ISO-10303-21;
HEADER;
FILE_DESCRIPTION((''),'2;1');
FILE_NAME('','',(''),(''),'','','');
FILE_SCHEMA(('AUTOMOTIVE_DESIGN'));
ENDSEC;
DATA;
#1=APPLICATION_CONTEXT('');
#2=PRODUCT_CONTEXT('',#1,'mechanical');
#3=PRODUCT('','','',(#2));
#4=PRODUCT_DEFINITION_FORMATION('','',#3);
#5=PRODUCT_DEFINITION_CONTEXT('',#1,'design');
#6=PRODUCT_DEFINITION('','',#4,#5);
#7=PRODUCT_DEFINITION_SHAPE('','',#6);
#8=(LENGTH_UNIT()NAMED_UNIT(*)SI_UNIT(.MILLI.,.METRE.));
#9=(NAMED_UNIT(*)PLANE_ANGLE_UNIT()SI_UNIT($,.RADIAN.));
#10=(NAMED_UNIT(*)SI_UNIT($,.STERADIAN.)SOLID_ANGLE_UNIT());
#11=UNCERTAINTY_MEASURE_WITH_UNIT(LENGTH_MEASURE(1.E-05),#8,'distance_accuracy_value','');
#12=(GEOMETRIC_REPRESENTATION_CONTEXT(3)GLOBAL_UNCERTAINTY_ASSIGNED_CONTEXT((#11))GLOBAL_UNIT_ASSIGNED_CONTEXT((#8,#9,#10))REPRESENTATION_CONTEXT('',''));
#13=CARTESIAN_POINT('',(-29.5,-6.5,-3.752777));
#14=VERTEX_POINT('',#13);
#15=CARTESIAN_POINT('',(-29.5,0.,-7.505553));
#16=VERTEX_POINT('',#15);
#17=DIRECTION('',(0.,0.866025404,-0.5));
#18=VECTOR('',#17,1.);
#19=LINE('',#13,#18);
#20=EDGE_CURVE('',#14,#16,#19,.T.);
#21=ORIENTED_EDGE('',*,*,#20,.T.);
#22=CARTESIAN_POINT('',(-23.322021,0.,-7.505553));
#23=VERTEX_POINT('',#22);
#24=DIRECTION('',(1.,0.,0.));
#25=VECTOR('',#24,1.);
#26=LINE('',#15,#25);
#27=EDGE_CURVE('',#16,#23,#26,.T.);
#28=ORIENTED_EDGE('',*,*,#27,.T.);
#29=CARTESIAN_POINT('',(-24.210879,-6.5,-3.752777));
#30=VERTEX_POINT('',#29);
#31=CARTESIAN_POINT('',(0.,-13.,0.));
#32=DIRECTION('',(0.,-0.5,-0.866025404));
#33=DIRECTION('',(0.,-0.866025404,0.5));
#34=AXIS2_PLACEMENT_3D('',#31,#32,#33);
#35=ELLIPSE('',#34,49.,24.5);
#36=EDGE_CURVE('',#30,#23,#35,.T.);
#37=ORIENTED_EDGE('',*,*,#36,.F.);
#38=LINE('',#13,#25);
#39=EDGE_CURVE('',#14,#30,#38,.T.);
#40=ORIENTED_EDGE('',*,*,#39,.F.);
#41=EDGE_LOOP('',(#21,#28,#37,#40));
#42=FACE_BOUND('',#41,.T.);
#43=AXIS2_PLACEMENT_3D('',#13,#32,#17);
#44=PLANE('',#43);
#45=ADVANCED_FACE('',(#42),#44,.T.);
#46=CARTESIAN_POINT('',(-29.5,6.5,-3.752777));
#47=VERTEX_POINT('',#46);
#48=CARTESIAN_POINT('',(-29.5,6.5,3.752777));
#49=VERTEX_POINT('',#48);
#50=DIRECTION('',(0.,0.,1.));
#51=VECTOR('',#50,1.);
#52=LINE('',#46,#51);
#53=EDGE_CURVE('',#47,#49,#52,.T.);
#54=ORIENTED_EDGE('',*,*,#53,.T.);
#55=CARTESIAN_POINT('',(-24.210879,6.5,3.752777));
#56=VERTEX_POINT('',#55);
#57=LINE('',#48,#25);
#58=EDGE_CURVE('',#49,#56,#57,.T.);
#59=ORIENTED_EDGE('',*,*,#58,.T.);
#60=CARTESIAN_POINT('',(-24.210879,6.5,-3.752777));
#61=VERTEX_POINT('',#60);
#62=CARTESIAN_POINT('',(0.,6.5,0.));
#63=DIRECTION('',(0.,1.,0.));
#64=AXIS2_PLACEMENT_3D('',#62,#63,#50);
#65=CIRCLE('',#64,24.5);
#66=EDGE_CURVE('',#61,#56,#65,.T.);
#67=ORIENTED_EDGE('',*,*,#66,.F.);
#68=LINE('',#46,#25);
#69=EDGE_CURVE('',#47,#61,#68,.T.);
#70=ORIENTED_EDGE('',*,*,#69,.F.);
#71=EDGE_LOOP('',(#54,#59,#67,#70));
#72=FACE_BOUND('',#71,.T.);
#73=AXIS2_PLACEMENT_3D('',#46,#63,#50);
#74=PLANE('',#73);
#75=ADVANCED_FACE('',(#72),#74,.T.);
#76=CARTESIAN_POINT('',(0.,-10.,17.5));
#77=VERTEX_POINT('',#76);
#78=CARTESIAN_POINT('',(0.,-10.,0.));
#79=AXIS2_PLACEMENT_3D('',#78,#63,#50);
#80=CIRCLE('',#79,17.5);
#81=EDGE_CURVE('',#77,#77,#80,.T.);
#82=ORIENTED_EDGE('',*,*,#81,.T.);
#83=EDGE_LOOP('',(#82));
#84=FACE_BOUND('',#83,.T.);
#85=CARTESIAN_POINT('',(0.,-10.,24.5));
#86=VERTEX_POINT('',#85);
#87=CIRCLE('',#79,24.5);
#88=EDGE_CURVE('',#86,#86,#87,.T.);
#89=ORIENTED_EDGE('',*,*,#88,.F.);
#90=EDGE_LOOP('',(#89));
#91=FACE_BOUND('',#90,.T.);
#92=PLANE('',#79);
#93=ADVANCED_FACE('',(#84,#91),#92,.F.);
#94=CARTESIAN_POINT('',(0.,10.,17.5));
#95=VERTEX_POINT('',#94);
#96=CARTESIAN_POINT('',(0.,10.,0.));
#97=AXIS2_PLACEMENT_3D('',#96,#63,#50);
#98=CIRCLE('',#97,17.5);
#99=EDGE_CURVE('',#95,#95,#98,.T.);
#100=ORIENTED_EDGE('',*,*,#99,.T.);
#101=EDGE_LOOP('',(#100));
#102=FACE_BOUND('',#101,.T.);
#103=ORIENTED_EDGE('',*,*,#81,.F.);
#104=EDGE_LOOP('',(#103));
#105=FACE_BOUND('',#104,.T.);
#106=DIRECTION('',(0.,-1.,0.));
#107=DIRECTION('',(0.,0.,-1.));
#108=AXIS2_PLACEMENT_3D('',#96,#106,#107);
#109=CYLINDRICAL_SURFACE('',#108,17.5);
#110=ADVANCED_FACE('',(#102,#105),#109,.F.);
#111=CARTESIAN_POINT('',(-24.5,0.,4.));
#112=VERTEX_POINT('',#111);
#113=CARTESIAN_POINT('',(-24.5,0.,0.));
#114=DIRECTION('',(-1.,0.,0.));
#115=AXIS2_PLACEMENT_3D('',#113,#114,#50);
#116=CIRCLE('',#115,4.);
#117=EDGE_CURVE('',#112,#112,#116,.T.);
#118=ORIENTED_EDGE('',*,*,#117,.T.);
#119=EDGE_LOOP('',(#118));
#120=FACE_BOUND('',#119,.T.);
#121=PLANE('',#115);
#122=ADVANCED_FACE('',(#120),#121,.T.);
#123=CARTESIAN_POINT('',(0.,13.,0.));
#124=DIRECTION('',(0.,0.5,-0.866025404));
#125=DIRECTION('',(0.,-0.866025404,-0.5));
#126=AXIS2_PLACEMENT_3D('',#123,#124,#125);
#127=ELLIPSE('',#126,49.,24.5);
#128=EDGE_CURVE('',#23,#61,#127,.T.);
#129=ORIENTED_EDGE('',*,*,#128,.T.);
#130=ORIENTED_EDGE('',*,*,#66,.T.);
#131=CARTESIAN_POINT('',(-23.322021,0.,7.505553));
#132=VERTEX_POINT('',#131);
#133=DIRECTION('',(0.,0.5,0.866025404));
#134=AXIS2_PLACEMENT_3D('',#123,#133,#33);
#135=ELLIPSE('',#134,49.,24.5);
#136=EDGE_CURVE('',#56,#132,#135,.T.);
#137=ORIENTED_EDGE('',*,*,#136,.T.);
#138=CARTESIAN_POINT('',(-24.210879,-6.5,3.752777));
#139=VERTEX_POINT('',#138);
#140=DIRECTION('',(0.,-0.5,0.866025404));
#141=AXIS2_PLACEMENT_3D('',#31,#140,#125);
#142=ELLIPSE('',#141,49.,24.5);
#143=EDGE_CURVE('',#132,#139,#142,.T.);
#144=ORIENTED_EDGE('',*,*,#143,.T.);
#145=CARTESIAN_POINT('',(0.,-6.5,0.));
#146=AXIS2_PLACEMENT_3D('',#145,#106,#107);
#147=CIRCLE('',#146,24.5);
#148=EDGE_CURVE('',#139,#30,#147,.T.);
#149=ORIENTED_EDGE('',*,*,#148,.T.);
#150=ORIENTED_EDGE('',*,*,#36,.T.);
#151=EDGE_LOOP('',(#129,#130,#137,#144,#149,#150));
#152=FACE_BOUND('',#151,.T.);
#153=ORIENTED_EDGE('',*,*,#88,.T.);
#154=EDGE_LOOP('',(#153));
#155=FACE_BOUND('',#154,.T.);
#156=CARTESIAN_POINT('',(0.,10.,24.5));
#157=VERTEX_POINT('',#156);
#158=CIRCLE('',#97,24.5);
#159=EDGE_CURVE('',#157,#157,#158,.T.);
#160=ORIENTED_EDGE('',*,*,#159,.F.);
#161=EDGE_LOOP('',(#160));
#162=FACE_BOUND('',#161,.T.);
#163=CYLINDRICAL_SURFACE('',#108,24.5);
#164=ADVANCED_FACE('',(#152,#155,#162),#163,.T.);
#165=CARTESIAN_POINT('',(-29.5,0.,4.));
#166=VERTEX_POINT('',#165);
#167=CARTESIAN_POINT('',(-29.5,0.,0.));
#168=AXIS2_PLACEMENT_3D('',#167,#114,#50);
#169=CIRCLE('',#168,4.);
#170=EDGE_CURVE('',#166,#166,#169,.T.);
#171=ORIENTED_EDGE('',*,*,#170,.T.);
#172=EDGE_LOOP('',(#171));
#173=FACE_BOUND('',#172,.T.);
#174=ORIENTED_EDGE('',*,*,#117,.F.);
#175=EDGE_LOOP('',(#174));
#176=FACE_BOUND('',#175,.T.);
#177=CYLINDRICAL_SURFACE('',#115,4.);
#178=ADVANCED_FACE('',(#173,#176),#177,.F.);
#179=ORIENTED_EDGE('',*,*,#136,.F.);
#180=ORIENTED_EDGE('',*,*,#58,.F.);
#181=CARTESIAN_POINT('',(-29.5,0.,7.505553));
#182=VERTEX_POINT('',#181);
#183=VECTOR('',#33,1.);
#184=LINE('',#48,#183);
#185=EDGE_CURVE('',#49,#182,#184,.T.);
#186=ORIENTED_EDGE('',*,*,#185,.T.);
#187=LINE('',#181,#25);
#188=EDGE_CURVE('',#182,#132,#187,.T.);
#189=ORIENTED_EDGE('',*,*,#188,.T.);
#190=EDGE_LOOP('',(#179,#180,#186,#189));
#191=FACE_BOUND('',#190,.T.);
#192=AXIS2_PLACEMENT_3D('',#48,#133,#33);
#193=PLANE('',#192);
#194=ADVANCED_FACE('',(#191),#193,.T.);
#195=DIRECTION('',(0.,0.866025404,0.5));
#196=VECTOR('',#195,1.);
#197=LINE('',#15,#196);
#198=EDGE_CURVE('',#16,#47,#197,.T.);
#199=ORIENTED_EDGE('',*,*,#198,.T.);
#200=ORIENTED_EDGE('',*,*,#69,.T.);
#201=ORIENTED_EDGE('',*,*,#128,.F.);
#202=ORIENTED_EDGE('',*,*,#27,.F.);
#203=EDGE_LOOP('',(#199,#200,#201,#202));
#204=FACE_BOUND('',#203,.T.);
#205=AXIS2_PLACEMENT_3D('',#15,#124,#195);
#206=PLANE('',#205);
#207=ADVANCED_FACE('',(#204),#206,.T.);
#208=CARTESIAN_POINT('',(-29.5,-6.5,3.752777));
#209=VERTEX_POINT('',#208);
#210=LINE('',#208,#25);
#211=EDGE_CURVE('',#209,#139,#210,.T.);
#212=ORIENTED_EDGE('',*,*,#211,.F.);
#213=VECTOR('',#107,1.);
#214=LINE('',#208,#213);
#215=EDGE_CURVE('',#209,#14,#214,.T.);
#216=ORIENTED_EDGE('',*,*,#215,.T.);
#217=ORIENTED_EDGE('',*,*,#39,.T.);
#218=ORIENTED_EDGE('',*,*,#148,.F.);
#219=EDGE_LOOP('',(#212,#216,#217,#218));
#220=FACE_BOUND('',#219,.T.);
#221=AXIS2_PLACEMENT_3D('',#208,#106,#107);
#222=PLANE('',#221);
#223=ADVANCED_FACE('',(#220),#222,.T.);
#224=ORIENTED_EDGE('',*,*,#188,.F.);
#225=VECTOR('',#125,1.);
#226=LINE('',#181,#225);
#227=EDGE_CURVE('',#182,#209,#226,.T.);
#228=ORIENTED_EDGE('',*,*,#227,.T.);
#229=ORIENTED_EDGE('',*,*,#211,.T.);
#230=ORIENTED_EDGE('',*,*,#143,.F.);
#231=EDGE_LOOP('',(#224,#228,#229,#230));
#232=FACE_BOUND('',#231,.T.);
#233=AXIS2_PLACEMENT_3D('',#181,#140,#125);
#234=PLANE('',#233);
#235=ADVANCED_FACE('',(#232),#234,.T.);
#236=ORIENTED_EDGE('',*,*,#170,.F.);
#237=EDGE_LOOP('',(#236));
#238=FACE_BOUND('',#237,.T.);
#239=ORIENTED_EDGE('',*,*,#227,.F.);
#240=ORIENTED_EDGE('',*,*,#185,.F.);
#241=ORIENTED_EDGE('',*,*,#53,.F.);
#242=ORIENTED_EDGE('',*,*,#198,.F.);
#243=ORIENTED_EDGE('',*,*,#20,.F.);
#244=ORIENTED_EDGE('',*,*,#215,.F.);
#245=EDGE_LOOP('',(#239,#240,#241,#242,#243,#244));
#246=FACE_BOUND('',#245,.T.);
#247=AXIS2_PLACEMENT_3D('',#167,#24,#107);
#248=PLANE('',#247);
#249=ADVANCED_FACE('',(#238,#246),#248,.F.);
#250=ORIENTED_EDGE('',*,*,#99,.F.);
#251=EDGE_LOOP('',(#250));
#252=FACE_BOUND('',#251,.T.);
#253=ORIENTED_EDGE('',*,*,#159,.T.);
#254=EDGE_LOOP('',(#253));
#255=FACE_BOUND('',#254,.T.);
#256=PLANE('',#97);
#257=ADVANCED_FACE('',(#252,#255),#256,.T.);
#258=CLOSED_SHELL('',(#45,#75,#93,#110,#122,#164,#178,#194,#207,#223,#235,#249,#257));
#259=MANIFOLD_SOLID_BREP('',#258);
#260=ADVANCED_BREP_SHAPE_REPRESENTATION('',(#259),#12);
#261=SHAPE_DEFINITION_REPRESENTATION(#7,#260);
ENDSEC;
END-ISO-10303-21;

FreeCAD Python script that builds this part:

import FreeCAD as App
import Part
import Sketcher

V = App.Vector
Q = App.Units.Quantity


def add_polygon(sketch, points):
    """Adds a closed chain of lines whose ends are joined by coincident constraints."""
    first, n = sketch.GeometryCount, len(points)
    for a, b in zip(points, points[1:] + points[:1]):
        sketch.addGeometry(Part.LineSegment(App.Vector(*a, 0), App.Vector(*b, 0)), False)
    for i in range(n):
        sketch.addConstraint(Sketcher.Constraint("Coincident", first + i, 2, first + (i + 1) % n, 1))

doc = App.newDocument("Part")
body = doc.addObject("PartDesign::Body", "Body")

# Sketch on XZ plane
sketch1 = doc.addObject("Sketcher::SketchObject", "Sketch")
body.addObject(sketch1)
sketch1.AttachmentSupport = (doc.XZ_Plane, [""])
sketch1.MapMode = "FlatFace"
sketch1.addGeometry(Part.Circle(V(0, 0, 0), V(0, 0, 1), 24.5), False)
sketch1.addGeometry(Part.Circle(V(0, 0, 0), V(0, 0, 1), 17.5), False)
sketch1.addConstraint(Sketcher.Constraint("Coincident", 0, 3, -1, 1))
sketch1.addConstraint(Sketcher.Constraint("Coincident", 1, 3, -1, 1))
sketch1.addConstraint(Sketcher.Constraint("Diameter", 0, 49.0))
sketch1.addConstraint(Sketcher.Constraint("Diameter", 1, 35.0))
pad1 = doc.addObject("PartDesign::Pad", "Pad")
body.addObject(pad1)
pad1.Profile = sketch1
pad1.Length = 20
pad1.Midplane = True

# Sketch on YZ plane
sketch2 = doc.addObject("Sketcher::SketchObject", "Sketch001")
body.addObject(sketch2)
sketch2.AttachmentSupport = (doc.YZ_Plane, [""])
sketch2.MapMode = "FlatFace"
sketch2.AttachmentOffset = App.Placement(V(0, 0, -20), App.Rotation())
add_polygon(sketch2, [(0, -7.505553), (6.5, -3.752777), (6.5, 3.752777), (0, 7.505553), (-6.5, 3.752777), (-6.5, -3.752777)])  # lines 0-5
sketch2.addConstraint(Sketcher.Constraint("Vertical", 1))
sketch2.addConstraint(Sketcher.Constraint("Vertical", 4))
sketch2.addConstraint(Sketcher.Constraint("Symmetric", 0, 2, 3, 2, -1, 1))
sketch2.addConstraint(Sketcher.Constraint("Symmetric", 2, 2, 5, 2, -1, 1))
sketch2.addConstraint(Sketcher.Constraint("PointOnObject", 2, 2, -2))
sketch2.addConstraint(Sketcher.Constraint("Parallel", 2, 5))
sketch2.addConstraint(Sketcher.Constraint("Horizontal", 1, 2, 3, 2))
sketch2.addConstraint(Sketcher.Constraint("Angle", 0, Q("30 deg")))
sketch2.addConstraint(Sketcher.Constraint("DistanceX", 3, 2, 1, 2, 13.0))
sketch2.addConstraint(Sketcher.Constraint("DistanceY", 1, 1, 1, 2, 7.505554))
pad2 = doc.addObject("PartDesign::Pad", "Pad001")
body.addObject(pad2)
pad2.Profile = sketch2
pad2.Length = 9.5
pad2.Reversed = True

# Sketch on YZ plane
sketch3 = doc.addObject("Sketcher::SketchObject", "Sketch002")
body.addObject(sketch3)
sketch3.AttachmentSupport = (doc.YZ_Plane, [""])
sketch3.MapMode = "FlatFace"
sketch3.AttachmentOffset = App.Placement(V(0, 0, -29.5), App.Rotation())
sketch3.addGeometry(Part.Circle(V(0, 0, 0), V(0, 0, 1), 4), False)
sketch3.addConstraint(Sketcher.Constraint("Coincident", 0, 3, -1, 1))
sketch3.addConstraint(Sketcher.Constraint("Diameter", 0, 8.0))
pocket1 = doc.addObject("PartDesign::Pocket", "Pocket")
body.addObject(pocket1)
pocket1.Profile = sketch3
pocket1.Length = 5
pocket1.Reversed = True

doc.recompute()
